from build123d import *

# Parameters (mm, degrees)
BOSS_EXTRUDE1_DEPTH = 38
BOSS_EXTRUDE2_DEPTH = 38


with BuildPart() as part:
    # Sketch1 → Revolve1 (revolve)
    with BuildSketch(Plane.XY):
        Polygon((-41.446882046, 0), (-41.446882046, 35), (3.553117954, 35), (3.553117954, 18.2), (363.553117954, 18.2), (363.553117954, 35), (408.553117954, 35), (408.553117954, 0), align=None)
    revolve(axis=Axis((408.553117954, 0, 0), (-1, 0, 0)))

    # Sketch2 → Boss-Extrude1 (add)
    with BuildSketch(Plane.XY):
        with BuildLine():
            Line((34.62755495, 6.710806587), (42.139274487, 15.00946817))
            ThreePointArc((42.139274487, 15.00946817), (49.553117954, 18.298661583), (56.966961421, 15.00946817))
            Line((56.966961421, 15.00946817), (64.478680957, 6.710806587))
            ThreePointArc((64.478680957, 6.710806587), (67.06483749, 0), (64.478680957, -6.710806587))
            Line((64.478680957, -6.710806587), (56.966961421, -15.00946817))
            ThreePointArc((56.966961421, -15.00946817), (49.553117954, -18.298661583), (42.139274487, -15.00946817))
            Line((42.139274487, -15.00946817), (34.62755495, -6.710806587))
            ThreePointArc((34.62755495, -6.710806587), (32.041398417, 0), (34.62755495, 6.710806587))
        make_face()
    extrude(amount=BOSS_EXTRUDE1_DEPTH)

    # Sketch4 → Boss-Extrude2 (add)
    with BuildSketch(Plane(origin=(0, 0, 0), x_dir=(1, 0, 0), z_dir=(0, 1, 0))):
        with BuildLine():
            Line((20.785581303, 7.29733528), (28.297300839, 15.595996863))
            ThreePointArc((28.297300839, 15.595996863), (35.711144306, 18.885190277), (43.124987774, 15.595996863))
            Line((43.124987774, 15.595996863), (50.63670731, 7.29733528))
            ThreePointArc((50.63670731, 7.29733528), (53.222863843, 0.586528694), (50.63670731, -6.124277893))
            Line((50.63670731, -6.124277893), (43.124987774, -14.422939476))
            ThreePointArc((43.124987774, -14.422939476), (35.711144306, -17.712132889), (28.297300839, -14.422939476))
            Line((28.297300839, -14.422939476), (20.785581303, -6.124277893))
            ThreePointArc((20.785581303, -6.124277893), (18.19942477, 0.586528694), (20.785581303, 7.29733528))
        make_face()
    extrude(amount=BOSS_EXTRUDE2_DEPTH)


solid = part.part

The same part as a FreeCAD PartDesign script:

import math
import FreeCAD as App
import Part
import Sketcher
from FreeCAD import Vector


def add_polygon(sketch, points):
    """Adds a closed chain of lines whose ends are joined by coincident constraints."""
    first, n = sketch.GeometryCount, len(points)
    for a, b in zip(points, points[1:] + points[:1]):
        sketch.addGeometry(Part.LineSegment(App.Vector(*a, 0), App.Vector(*b, 0)), False)
    for i in range(n):
        sketch.addConstraint(Sketcher.Constraint("Coincident", first + i, 2, first + (i + 1) % n, 1))

doc = App.newDocument("Part")
params = doc.addObject("Spreadsheet::Sheet", "Params")
for row, (alias, value) in enumerate([
    ("sketch1_width", "450 mm"),
    ("sketch1_width2", "45 mm"),
    ("sketch1_height", "35 mm"),
    ("sketch1_height2", "16.8 mm"),
    ("revolution_angle", "360 deg"),
    ("sketch2_radius", "10 mm"),
    ("pad1_length", "38 mm"),
    ("sketch3_radius", "10 mm"),
    ("pad2_length", "38 mm"),
], start=1):
    params.set(f"A{row}", alias)
    params.set(f"B{row}", "=" + value)
    params.setAlias(f"B{row}", alias)

body = doc.addObject("PartDesign::Body", "Body")

# Sketch on XY plane
sketch1 = doc.addObject("Sketcher::SketchObject", "Sketch")
body.addObject(sketch1)
sketch1.AttachmentSupport = (doc.XY_Plane, [""])
sketch1.MapMode = "FlatFace"
add_polygon(sketch1, [(-41, 35), (-41, 0), (409, 0), (409, 35), (364, 35), (364, 18), (4, 18), (4, 35)])  # lines 0-7
sketch1.addConstraint([
    Sketcher.Constraint("Vertical", 0),
    Sketcher.Constraint("Horizontal", 1),
    Sketcher.Constraint("Vertical", 2),
    Sketcher.Constraint("Horizontal", 3),
    Sketcher.Constraint("Vertical", 4),
    Sketcher.Constraint("Horizontal", 5),
    Sketcher.Constraint("Vertical", 6),
    Sketcher.Constraint("Horizontal", 7),
    Sketcher.Constraint("PointOnObject", 0, 2, -1),
    Sketcher.Constraint("Horizontal", 3, 2, 6, 2),
    Sketcher.Constraint("Equal", 3, 7),
    Sketcher.Constraint("DistanceX", 1, 1, 1, 2, 450.0),
    Sketcher.Constraint("DistanceX", 3, 2, 3, 1, 45.0),
    Sketcher.Constraint("DistanceY", 0, 2, 0, 1, 35.0),
    Sketcher.Constraint("DistanceY", 4, 2, 4, 1, 16.8),
    Sketcher.Constraint("DistanceX", 0, 2, -1, 1, 41.446882),
])
sketch1.setExpression("Constraints[19]", "Params.sketch1_width")
sketch1.setExpression("Constraints[20]", "Params.sketch1_width2")
sketch1.setExpression("Constraints[21]", "Params.sketch1_height")
sketch1.setExpression("Constraints[22]", "Params.sketch1_height2")
revolution = doc.addObject("PartDesign::Revolution", "Revolution")
body.addObject(revolution)
revolution.Profile = sketch1
revolution.ReferenceAxis = (sketch1, ["H_Axis"])
revolution.setExpression("Angle", "Params.revolution_angle")

# Sketch on XY plane
sketch2 = doc.addObject("Sketcher::SketchObject", "Sketch001")
body.addObject(sketch2)
sketch2.AttachmentSupport = (doc.XY_Plane, [""])
sketch2.MapMode = "FlatFace"
sketch2.addGeometry([
    Part.LineSegment(Vector(42, 15, 0), Vector(35, 7, 0)),  # 0
    Part.ArcOfCircle(Part.Circle(Vector(42, 0, 0), Vector(0, 0, 1), 10), math.radians(138), math.radians(222)),  # 1
    Part.LineSegment(Vector(35, -7, 0), Vector(42, -15, 0)),  # 2
    Part.ArcOfCircle(Part.Circle(Vector(50, -8, 0), Vector(0, 0, 1), 10), math.radians(-138), math.radians(-42)),  # 3
    Part.LineSegment(Vector(57, -15, 0), Vector(64, -7, 0)),  # 4
    Part.ArcOfCircle(Part.Circle(Vector(57, 0, 0), Vector(0, 0, 1), 10), math.radians(-42), math.radians(42)),  # 5
    Part.LineSegment(Vector(64, 7, 0), Vector(57, 15, 0)),  # 6
    Part.ArcOfCircle(Part.Circle(Vector(50, 8, 0), Vector(0, 0, 1), 10), math.radians(42), math.radians(138)),  # 7
], False)
sketch2.addConstraint([
    Sketcher.Constraint("Tangent", 0, 2, 1, 1),
    Sketcher.Constraint("Tangent", 1, 2, 2, 1),
    Sketcher.Constraint("Tangent", 2, 2, 3, 1),
    Sketcher.Constraint("Tangent", 3, 2, 4, 1),
    Sketcher.Constraint("Tangent", 4, 2, 5, 1),
    Sketcher.Constraint("Tangent", 5, 2, 6, 1),
    Sketcher.Constraint("Tangent", 6, 2, 7, 1),
    Sketcher.Constraint("Tangent", 7, 2, 0, 1),
    Sketcher.Constraint("Equal", 1, 3),
    Sketcher.Constraint("Equal", 3, 5),
    Sketcher.Constraint("Equal", 5, 7),
    Sketcher.Constraint("Symmetric", 3, 3, 7, 3, -1),
    Sketcher.Constraint("PointOnObject", 1, 3, -1),
    Sketcher.Constraint("PointOnObject", 5, 3, -1),
    Sketcher.Constraint("Parallel", 0, 4),
    Sketcher.Constraint("Radius", 1, 10.0),
    Sketcher.Constraint("DistanceX", -1, 1, 1, 3, 42.041398),
    Sketcher.Constraint("DistanceY", 3, 3, -1, 1, 8.298662),
    Sketcher.Constraint("DistanceY", 2, 2, -1, 1, 15.009468),
])
sketch2.setExpression("Constraints[15]", "Params.sketch2_radius")
pad1 = doc.addObject("PartDesign::Pad", "Pad")
body.addObject(pad1)
pad1.Profile = sketch2
pad1.setExpression("Length", "Params.pad1_length")

# Sketch on XZ plane
sketch3 = doc.addObject("Sketcher::SketchObject", "Sketch002")
body.addObject(sketch3)
sketch3.AttachmentSupport = (doc.XZ_Plane, [""])
sketch3.MapMode = "FlatFace"
sketch3.addGeometry([
    Part.LineSegment(Vector(28, -16, 0), Vector(21, -7, 0)),  # 0
    Part.ArcOfCircle(Part.Circle(Vector(28, -1, 0), Vector(0, 0, 1), 10), math.radians(138), math.radians(222)),  # 1
    Part.LineSegment(Vector(21, 6, 0), Vector(28, 14, 0)),  # 2
    Part.ArcOfCircle(Part.Circle(Vector(36, 8, 0), Vector(0, 0, 1), 10), math.radians(42), math.radians(138)),  # 3
    Part.LineSegment(Vector(43, 14, 0), Vector(51, 6, 0)),  # 4
    Part.ArcOfCircle(Part.Circle(Vector(43, -1, 0), Vector(0, 0, 1), 10), math.radians(-42), math.radians(42)),  # 5
    Part.LineSegment(Vector(51, -7, 0), Vector(43, -16, 0)),  # 6
    Part.ArcOfCircle(Part.Circle(Vector(36, -9, 0), Vector(0, 0, 1), 10), math.radians(-138), math.radians(-42)),  # 7
], False)
sketch3.addConstraint([
    Sketcher.Constraint("Tangent", 0, 2, 1, 2),
    Sketcher.Constraint("Tangent", 1, 1, 2, 1),
    Sketcher.Constraint("Tangent", 2, 2, 3, 2),
    Sketcher.Constraint("Tangent", 3, 1, 4, 1),
    Sketcher.Constraint("Tangent", 4, 2, 5, 2),
    Sketcher.Constraint("Tangent", 5, 1, 6, 1),
    Sketcher.Constraint("Tangent", 6, 2, 7, 2),
    Sketcher.Constraint("Tangent", 7, 1, 0, 1),
    Sketcher.Constraint("Equal", 1, 3),
    Sketcher.Constraint("Equal", 3, 5),
    Sketcher.Constraint("Equal", 5, 7),
    Sketcher.Constraint("Parallel", 0, 4),
    Sketcher.Constraint("Parallel", 2, 6),
    Sketcher.Constraint("Horizontal", 1, 3, 5, 3),
    Sketcher.Constraint("Horizontal", 2, 2, 3, 1),
    Sketcher.Constraint("Radius", 1, 10.0),
    Sketcher.Constraint("DistanceX", -1, 1, 2, 2, 28.297301),
    Sketcher.Constraint("DistanceY", 1, 3, -1, 1, 0.586529),
    Sketcher.Constraint("DistanceY", 7, 3, -1, 1, 8.88519),
    Sketcher.Constraint("DistanceX", -1, 1, 0, 2, 20.785581),
])
sketch3.setExpression("Constraints[15]", "Params.sketch3_radius")
pad2 = doc.addObject("PartDesign::Pad", "Pad001")
body.addObject(pad2)
pad2.Profile = sketch3
pad2.setExpression("Length", "Params.pad2_length")
pad2.Reversed = True

doc.recompute()
